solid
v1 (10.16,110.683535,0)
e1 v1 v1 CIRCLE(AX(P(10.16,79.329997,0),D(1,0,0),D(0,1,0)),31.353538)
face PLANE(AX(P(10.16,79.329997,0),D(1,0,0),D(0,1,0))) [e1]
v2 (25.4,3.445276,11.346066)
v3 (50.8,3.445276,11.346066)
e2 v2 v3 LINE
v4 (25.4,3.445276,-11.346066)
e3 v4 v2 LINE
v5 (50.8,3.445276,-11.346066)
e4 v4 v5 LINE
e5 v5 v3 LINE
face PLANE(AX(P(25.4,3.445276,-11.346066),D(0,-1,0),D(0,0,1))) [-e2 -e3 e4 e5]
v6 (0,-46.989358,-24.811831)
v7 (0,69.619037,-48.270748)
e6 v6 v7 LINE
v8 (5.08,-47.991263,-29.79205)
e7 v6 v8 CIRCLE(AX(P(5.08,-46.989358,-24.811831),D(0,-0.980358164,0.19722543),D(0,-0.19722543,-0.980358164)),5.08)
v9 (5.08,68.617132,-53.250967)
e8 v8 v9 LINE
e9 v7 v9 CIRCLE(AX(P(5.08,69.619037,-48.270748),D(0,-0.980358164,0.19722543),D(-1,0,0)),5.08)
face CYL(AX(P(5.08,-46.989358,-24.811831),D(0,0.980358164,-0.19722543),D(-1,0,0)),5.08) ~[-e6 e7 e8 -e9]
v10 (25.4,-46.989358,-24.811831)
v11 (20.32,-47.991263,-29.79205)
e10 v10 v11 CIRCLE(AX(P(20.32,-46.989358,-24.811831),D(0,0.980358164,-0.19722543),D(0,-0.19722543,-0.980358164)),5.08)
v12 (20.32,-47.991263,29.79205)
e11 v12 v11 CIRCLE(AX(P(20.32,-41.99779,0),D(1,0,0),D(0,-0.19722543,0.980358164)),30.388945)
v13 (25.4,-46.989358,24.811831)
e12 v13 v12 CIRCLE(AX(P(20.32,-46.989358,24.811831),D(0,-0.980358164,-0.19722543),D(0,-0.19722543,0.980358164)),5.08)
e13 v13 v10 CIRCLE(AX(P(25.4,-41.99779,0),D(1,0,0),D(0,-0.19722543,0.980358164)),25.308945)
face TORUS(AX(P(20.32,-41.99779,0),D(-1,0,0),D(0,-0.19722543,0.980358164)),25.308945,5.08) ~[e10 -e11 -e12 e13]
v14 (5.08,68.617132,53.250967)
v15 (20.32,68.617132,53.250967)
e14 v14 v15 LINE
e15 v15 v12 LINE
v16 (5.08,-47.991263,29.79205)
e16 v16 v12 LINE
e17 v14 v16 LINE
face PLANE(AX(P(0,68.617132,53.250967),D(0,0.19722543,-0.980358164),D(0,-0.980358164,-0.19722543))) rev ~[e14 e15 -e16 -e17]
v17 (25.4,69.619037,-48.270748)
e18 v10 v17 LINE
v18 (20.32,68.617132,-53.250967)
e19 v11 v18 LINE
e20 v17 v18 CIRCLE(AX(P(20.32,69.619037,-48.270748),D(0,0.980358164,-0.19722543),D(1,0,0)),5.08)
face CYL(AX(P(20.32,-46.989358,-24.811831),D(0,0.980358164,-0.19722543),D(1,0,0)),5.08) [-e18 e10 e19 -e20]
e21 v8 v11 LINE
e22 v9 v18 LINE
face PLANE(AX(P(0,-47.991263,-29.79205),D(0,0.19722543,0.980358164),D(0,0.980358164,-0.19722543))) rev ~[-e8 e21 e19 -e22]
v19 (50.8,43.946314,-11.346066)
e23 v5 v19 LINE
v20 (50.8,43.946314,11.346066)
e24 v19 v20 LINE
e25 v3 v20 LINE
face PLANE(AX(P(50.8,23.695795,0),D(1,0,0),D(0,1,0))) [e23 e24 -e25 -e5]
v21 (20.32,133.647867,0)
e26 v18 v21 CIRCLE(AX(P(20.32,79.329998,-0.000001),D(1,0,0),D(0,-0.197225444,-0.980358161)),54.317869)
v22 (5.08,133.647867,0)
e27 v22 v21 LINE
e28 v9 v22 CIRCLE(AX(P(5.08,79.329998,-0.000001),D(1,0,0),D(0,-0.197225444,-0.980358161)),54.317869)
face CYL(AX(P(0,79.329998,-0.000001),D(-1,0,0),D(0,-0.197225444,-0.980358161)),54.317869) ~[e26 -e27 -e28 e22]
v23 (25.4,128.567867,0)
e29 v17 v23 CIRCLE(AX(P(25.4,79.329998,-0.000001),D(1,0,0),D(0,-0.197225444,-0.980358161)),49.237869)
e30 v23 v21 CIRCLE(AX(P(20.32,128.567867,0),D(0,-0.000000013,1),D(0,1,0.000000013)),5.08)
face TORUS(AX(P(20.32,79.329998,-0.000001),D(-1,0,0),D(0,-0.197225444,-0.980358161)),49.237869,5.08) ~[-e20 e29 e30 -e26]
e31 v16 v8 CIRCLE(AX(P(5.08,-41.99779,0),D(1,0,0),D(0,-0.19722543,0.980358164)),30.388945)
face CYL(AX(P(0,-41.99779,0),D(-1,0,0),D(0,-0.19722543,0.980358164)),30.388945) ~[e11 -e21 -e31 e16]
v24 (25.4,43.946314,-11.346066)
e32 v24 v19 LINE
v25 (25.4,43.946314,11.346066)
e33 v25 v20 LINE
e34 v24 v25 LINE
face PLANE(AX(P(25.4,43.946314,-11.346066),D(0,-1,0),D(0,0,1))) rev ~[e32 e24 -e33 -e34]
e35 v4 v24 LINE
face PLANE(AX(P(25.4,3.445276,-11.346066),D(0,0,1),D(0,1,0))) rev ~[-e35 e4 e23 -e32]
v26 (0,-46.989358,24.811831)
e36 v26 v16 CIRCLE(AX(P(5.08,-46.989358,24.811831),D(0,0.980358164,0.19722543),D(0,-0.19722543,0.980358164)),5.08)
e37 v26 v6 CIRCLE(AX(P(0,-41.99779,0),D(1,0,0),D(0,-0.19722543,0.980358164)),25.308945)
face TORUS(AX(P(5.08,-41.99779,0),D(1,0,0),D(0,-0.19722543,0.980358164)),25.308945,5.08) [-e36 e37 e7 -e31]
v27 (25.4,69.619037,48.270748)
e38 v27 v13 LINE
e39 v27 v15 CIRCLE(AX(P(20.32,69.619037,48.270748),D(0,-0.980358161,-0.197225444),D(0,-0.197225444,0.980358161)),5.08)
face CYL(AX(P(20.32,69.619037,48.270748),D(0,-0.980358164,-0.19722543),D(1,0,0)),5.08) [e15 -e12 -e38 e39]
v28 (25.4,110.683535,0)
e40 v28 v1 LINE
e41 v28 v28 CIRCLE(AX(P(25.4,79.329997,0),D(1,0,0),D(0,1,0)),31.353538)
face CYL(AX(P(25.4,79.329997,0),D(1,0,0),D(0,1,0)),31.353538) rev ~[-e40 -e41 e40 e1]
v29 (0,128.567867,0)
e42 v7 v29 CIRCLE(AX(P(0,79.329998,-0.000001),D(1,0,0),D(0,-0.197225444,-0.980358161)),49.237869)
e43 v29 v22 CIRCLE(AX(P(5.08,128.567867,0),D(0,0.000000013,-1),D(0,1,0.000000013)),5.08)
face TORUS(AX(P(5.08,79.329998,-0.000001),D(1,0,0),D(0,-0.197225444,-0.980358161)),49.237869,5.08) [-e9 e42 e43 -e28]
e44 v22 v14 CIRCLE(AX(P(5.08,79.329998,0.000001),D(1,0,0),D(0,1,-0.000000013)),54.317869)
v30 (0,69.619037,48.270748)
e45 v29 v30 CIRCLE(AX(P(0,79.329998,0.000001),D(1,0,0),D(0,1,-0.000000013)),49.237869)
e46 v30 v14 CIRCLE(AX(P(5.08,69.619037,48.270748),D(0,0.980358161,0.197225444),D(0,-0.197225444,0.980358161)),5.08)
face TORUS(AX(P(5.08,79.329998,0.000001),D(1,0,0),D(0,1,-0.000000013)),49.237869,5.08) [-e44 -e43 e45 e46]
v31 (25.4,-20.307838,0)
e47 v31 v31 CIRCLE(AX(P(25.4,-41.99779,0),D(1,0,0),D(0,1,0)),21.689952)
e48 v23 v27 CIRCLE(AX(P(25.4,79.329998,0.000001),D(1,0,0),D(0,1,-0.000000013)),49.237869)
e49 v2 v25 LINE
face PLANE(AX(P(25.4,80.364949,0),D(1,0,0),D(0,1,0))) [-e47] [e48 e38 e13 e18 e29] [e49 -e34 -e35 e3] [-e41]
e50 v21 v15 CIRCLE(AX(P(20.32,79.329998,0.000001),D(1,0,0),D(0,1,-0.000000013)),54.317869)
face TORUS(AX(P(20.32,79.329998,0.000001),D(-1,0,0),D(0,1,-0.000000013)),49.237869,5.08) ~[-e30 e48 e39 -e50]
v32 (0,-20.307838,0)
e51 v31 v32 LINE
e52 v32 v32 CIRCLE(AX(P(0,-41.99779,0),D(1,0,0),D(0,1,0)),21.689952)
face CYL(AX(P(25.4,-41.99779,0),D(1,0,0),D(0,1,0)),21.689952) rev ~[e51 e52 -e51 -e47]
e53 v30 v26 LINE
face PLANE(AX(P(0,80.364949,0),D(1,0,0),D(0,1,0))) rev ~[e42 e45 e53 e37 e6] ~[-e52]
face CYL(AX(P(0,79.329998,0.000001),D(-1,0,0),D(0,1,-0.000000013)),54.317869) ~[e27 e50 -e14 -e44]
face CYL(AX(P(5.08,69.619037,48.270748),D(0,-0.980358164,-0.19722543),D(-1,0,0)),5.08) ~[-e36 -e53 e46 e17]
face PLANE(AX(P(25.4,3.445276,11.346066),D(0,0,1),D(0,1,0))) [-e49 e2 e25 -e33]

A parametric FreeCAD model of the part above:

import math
import FreeCAD as App
import Part
import Sketcher
Q = App.Units.Quantity


def edges_at(feature, points):
    """Names of the edges that pass closest to the given points."""
    edges = feature.Shape.Edges
    near = lambda p: min(range(len(edges)), key=lambda i: edges[i].distToShape(Part.Vertex(*p))[0])
    return sorted({f"Edge{near(p) + 1}" for p in points})

doc = App.newDocument("Part")
body = doc.addObject("PartDesign::Body", "Body")

sketch1 = body.newObject("Sketcher::SketchObject", "Sketch")
sketch1.AttachmentSupport = (doc.getObject("YZ_Plane"), [""])
sketch1.MapMode = "FlatFace"
sketch1.addGeometry(Part.ArcOfCircle(Part.Circle(App.Vector(79.329998, 0.000001, 0), App.Vector(0, 0, 1), 54.317869), math.radians(-0.000001), math.radians(101.374757)), False)
sketch1.addGeometry(Part.LineSegment(App.Vector(68.617132, 53.250967, 0), App.Vector(-47.991263, 29.79205, 0)), False)
sketch1.addGeometry(Part.ArcOfCircle(Part.Circle(App.Vector(-41.99779, 0, 0), App.Vector(0, 0, 1), 30.388945), math.radians(101.374756), math.radians(258.625244)), False)
sketch1.addGeometry(Part.LineSegment(App.Vector(-47.991263, -29.79205, 0), App.Vector(68.617132, -53.250967, 0)), False)
sketch1.addGeometry(Part.ArcOfCircle(Part.Circle(App.Vector(79.329998, -0.000001, 0), App.Vector(0, 0, 1), 54.317869), math.radians(-101.374757), math.radians(0.000001)), False)
sketch1.addConstraint(Sketcher.Constraint("Coincident", 0, 2, 1, 1))
sketch1.addConstraint(Sketcher.Constraint("Coincident", 1, 2, 2, 1))
sketch1.addConstraint(Sketcher.Constraint("Coincident", 2, 2, 3, 1))
sketch1.addConstraint(Sketcher.Constraint("Coincident", 3, 2, 4, 1))
sketch1.addConstraint(Sketcher.Constraint("Coincident", 4, 2, 0, 1))
sketch1.addConstraint(Sketcher.Constraint("Coincident", 4, 3, 0, 3))
sketch1.addConstraint(Sketcher.Constraint("PointOnObject", 0, 3, -1))
sketch1.addConstraint(Sketcher.Constraint("PointOnObject", 2, 3, -1))
sketch1.addConstraint(Sketcher.Constraint("PointOnObject", 4, 2, -1))
sketch1.addConstraint(Sketcher.Constraint("Radius", 0, Q("54.317869 mm")))
sketch1.addConstraint(Sketcher.Constraint("Radius", 2, Q("30.388945 mm")))
sketch1.addConstraint(Sketcher.Constraint("DistanceY", 2, 2, 1, 2, Q("59.5841 mm")))
sketch1.addConstraint(Sketcher.Constraint("DistanceX", 2, 3, -1, 1, Q("41.99779 mm")))
sketch1.addConstraint(Sketcher.Constraint("DistanceX", -1, 1, 0, 2, Q("68.617132 mm")))
sketch1.addConstraint(Sketcher.Constraint("DistanceY", -1, 1, 1, 2, Q("29.79205 mm")))
sketch1.addConstraint(Sketcher.Constraint("DistanceX", -1, 1, 3, 2, Q("68.617132 mm")))
sketch1.addConstraint(Sketcher.Constraint("DistanceX", 2, 3, 0, 3, Q("121.327788 mm")))
pad1 = body.newObject("PartDesign::Pad", "Pad")
pad1.Profile = sketch1
pad1.Length = Q("1 in")

sketch2 = body.newObject("Sketcher::SketchObject", "Sketch001")
sketch2.AttachmentSupport = (doc.getObject("YZ_Plane"), [""])
sketch2.MapMode = "FlatFace"
sketch2.AttachmentOffset = App.Placement(App.Vector(0, 0, 1 * 25.4), App.Rotation())
sketch2.addGeometry(Part.LineSegment(App.Vector(3, 11, 0), App.Vector(3, -11, 0)), False)
sketch2.addGeometry(Part.LineSegment(App.Vector(3, -11, 0), App.Vector(44, -11, 0)), False)
sketch2.addGeometry(Part.LineSegment(App.Vector(44, -11, 0), App.Vector(44, 11, 0)), False)
sketch2.addGeometry(Part.LineSegment(App.Vector(44, 11, 0), App.Vector(3, 11, 0)), False)
sketch2.addConstraint(Sketcher.Constraint("Coincident", 0, 2, 1, 1))
sketch2.addConstraint(Sketcher.Constraint("Coincident", 1, 2, 2, 1))
sketch2.addConstraint(Sketcher.Constraint("Coincident", 2, 2, 3, 1))
sketch2.addConstraint(Sketcher.Constraint("Coincident", 3, 2, 0, 1))
sketch2.addConstraint(Sketcher.Constraint("Vertical", 0))
sketch2.addConstraint(Sketcher.Constraint("Horizontal", 1))
sketch2.addConstraint(Sketcher.Constraint("Vertical", 2))
sketch2.addConstraint(Sketcher.Constraint("Horizontal", 3))
sketch2.addConstraint(Sketcher.Constraint("DistanceX", 1, 1, 1, 2, Q("40.501038 mm")))
sketch2.addConstraint(Sketcher.Constraint("DistanceY", 0, 2, 0, 1, Q("22.692132 mm")))
sketch2.addConstraint(Sketcher.Constraint("DistanceX", -1, 1, 0, 2, Q("3.445276 mm")))
sketch2.addConstraint(Sketcher.Constraint("DistanceY", 0, 2, -1, 1, Q("11.346066 mm")))
pad2 = body.newObject("PartDesign::Pad", "Pad001")
pad2.Profile = sketch2
pad2.Length = Q("1 in")

sketch3 = body.newObject("Sketcher::SketchObject", "Sketch002")
sketch3.AttachmentSupport = (doc.getObject("YZ_Plane"), [""])
sketch3.MapMode = "FlatFace"
sketch3.AttachmentOffset = App.Placement(App.Vector(0, 0, 1 * 25.4), App.Rotation())
sketch3.addGeometry(Part.Circle(App.Vector(79, 0, 0), App.Vector(0, 0, 1), 31), False)
sketch3.addConstraint(Sketcher.Constraint("PointOnObject", 0, 3, -1))
sketch3.addConstraint(Sketcher.Constraint("Diameter", 0, Q("62.707076 mm")))
sketch3.addConstraint(Sketcher.Constraint("DistanceX", -1, 1, 0, 3, Q("79.329997 mm")))
pocket1 = body.newObject("PartDesign::Pocket", "Pocket")
pocket1.Profile = sketch3
pocket1.Length = Q("0.6 in")

sketch4 = body.newObject("Sketcher::SketchObject", "Sketch003")
sketch4.AttachmentSupport = (doc.getObject("YZ_Plane"), [""])
sketch4.MapMode = "FlatFace"
sketch4.AttachmentOffset = App.Placement(App.Vector(0, 0, 1 * 25.4), App.Rotation())
sketch4.addGeometry(Part.Circle(App.Vector(-42, 0, 0), App.Vector(0, 0, 1), 22), False)
sketch4.addConstraint(Sketcher.Constraint("PointOnObject", 0, 3, -1))
sketch4.addConstraint(Sketcher.Constraint("Diameter", 0, Q("43.379904 mm")))
sketch4.addConstraint(Sketcher.Constraint("DistanceX", 0, 3, -1, 1, Q("41.99779 mm")))
pocket2 = body.newObject("PartDesign::Pocket", "Pocket001")
pocket2.Profile = sketch4
pocket2.Length = Q("1 in")
doc.recompute()

fillet = body.newObject("PartDesign::Fillet", "Fillet")
fillet.Base = (pocket2, edges_at(pocket2, [
    (0, -72.387, 0),
    (12.7, -47.991, -29.792),
    (25.4, -72.387, 0),
    (12.7, -47.991, 29.792),
]))
fillet.Radius = Q("0.2 in")

doc.recompute()
